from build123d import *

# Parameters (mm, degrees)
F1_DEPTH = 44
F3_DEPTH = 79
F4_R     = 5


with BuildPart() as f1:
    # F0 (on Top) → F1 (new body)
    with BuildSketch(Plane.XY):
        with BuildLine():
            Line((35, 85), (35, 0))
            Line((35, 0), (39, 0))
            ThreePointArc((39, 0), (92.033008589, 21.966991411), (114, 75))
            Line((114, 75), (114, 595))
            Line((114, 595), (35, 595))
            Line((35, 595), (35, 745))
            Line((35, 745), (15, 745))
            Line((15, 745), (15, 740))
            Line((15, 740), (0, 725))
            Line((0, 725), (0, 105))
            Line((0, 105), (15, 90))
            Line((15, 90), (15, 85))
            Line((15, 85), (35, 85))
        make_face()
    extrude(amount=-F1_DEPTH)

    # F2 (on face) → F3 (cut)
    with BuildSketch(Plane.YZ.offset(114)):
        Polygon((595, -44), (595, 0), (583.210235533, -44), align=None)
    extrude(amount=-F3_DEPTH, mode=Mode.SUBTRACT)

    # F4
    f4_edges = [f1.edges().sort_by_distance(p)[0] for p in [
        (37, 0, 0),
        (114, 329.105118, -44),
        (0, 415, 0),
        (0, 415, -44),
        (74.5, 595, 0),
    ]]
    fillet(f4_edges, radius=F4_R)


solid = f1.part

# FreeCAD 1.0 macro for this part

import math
import FreeCAD as App
import Part
import Sketcher

V = App.Vector
Q = App.Units.Quantity


def edges_at(feature, points):
    """Names of the edges that pass closest to the given points."""
    edges = feature.Shape.Edges
    near = lambda p: min(range(len(edges)), key=lambda i: edges[i].distToShape(Part.Vertex(*p))[0])
    return sorted({f"Edge{near(p) + 1}" for p in points})


def add_polygon(sketch, points):
    """Adds a closed chain of lines whose ends are joined by coincident constraints."""
    first, n = sketch.GeometryCount, len(points)
    for a, b in zip(points, points[1:] + points[:1]):
        sketch.addGeometry(Part.LineSegment(App.Vector(*a, 0), App.Vector(*b, 0)), False)
    for i in range(n):
        sketch.addConstraint(Sketcher.Constraint("Coincident", first + i, 2, first + (i + 1) % n, 1))

doc = App.newDocument("Part")
params = doc.addObject("Spreadsheet::Sheet", "Params")
for row, (alias, value) in enumerate([
    ("sketch1_radius", "75 mm"),
    ("sketch1_width", "4 mm"),
    ("sketch1_width2", "20 mm"),
    ("sketch1_height", "85 mm"),
    ("sketch1_height2", "520 mm"),
    ("pad1_length", "44 mm"),
    ("sketch2_height", "44 mm"),
    ("pocket1_length", "79 mm"),
    ("fillet_radius", "5 mm"),
], start=1):
    params.set(f"A{row}", alias)
    params.set(f"B{row}", "=" + value)
    params.setAlias(f"B{row}", alias)

body = doc.addObject("PartDesign::Body", "Body")

sketch1 = body.newObject("Sketcher::SketchObject", "Sketch")
sketch1.AttachmentSupport = (doc.getObject("XY_Plane"), [""])
sketch1.MapMode = "FlatFace"
sketch1.addGeometry([
    Part.LineSegment(V(35, 85, 0), V(35, 0, 0)),
    Part.LineSegment(V(35, 0, 0), V(39, 0, 0)),
    Part.ArcOfCircle(Part.Circle(V(39, 75, 0), V(0, 0, 1), 75), math.radians(-90), math.radians(0)),
    Part.LineSegment(V(114, 75, 0), V(114, 595, 0)),
    Part.LineSegment(V(114, 595, 0), V(35, 595, 0)),
    Part.LineSegment(V(35, 595, 0), V(35, 745, 0)),
    Part.LineSegment(V(35, 745, 0), V(15, 745, 0)),
    Part.LineSegment(V(15, 745, 0), V(15, 740, 0)),
    Part.LineSegment(V(15, 740, 0), V(0, 725, 0)),
    Part.LineSegment(V(0, 725, 0), V(0, 105, 0)),
    Part.LineSegment(V(0, 105, 0), V(15, 90, 0)),
    Part.LineSegment(V(15, 90, 0), V(15, 85, 0)),
    Part.LineSegment(V(15, 85, 0), V(35, 85, 0)),
], False)
sketch1.addConstraint([
    Sketcher.Constraint("Coincident", 0, 2, 1, 1),
    Sketcher.Constraint("Tangent", 1, 2, 2, 1),
    Sketcher.Constraint("Tangent", 2, 2, 3, 1),
    Sketcher.Constraint("Coincident", 3, 2, 4, 1),
    Sketcher.Constraint("Coincident", 4, 2, 5, 1),
    Sketcher.Constraint("Coincident", 5, 2, 6, 1),
    Sketcher.Constraint("Coincident", 6, 2, 7, 1),
    Sketcher.Constraint("Coincident", 7, 2, 8, 1),
    Sketcher.Constraint("Coincident", 8, 2, 9, 1),
    Sketcher.Constraint("Coincident", 9, 2, 10, 1),
    Sketcher.Constraint("Coincident", 10, 2, 11, 1),
    Sketcher.Constraint("Coincident", 11, 2, 12, 1),
    Sketcher.Constraint("Coincident", 12, 2, 0, 1),
    Sketcher.Constraint("Vertical", 0),
    Sketcher.Constraint("Horizontal", 1),
    Sketcher.Constraint("Vertical", 3),
    Sketcher.Constraint("Horizontal", 4),
    Sketcher.Constraint("Vertical", 5),
    Sketcher.Constraint("Horizontal", 6),
    Sketcher.Constraint("Vertical", 7),
    Sketcher.Constraint("Vertical", 9),
    Sketcher.Constraint("Vertical", 11),
    Sketcher.Constraint("Horizontal", 12),
    Sketcher.Constraint("PointOnObject", 0, 2, -1),
    Sketcher.Constraint("PointOnObject", 8, 2, -2),
    Sketcher.Constraint("Perpendicular", 8, 10),
    Sketcher.Constraint("Vertical", 0, 2, 4, 2),
    Sketcher.Constraint("Vertical", 7, 2, 10, 2),
    Sketcher.Constraint("Equal", 7, 11),
    Sketcher.Constraint("Equal", 8, 10),
    Sketcher.Constraint("Radius", 2, Q("75 mm")),
    Sketcher.Constraint("DistanceX", 1, 1, 1, 2, Q("4 mm")),
    Sketcher.Constraint("DistanceX", 6, 2, 6, 1, Q("20 mm")),
    Sketcher.Constraint("DistanceY", 0, 2, 0, 1, Q("85 mm")),
    Sketcher.Constraint("DistanceY", 3, 1, 3, 2, Q("520 mm")),
    Sketcher.Constraint("DistanceY", 5, 1, 5, 2, Q("150 mm")),
    Sketcher.Constraint("DistanceY", 7, 2, 7, 1, Q("5 mm")),
    Sketcher.Constraint("DistanceY", 9, 2, 9, 1, Q("620 mm")),
])
sketch1.setExpression("Constraints[30]", "Params.sketch1_radius")
sketch1.setExpression("Constraints[31]", "Params.sketch1_width")
sketch1.setExpression("Constraints[32]", "Params.sketch1_width2")
sketch1.setExpression("Constraints[33]", "Params.sketch1_height")
sketch1.setExpression("Constraints[34]", "Params.sketch1_height2")
pad1 = body.newObject("PartDesign::Pad", "Pad")
pad1.Profile = sketch1
pad1.setExpression("Length", "Params.pad1_length")
pad1.Reversed = True

sketch2 = body.newObject("Sketcher::SketchObject", "Sketch001")
sketch2.AttachmentSupport = (doc.getObject("YZ_Plane"), [""])
sketch2.MapMode = "FlatFace"
sketch2.AttachmentOffset = App.Placement(V(0, 0, 114), App.Rotation())
add_polygon(sketch2, [(595, -44), (595, 0), (583.210236, -44)])
sketch2.addConstraint([
    Sketcher.Constraint("Vertical", 0),
    Sketcher.Constraint("Horizontal", 2),
    Sketcher.Constraint("PointOnObject", 0, 2, -1),
    Sketcher.Constraint("DistanceY", 0, 1, 0, 2, Q("44 mm")),
    Sketcher.Constraint("Angle", 1, Q("-105 deg")),
    Sketcher.Constraint("DistanceX", -1, 1, 0, 2, Q("595 mm")),
])
sketch2.setExpression("Constraints[6]", "Params.sketch2_height")
pocket1 = body.newObject("PartDesign::Pocket", "Pocket")
pocket1.Profile = sketch2
pocket1.setExpression("Length", "Params.pocket1_length")
doc.recompute()

fillet = body.newObject("PartDesign::Fillet", "Fillet")
fillet.Base = (pocket1, edges_at(pocket1, [
    (37, 0, 0),
    (114, 329.105, -44),
    (0, 415, 0),
    (0, 415, -44),
    (74.5, 595, 0),
]))
fillet.setExpression("Radius", "Params.fillet_radius")

doc.recompute()
